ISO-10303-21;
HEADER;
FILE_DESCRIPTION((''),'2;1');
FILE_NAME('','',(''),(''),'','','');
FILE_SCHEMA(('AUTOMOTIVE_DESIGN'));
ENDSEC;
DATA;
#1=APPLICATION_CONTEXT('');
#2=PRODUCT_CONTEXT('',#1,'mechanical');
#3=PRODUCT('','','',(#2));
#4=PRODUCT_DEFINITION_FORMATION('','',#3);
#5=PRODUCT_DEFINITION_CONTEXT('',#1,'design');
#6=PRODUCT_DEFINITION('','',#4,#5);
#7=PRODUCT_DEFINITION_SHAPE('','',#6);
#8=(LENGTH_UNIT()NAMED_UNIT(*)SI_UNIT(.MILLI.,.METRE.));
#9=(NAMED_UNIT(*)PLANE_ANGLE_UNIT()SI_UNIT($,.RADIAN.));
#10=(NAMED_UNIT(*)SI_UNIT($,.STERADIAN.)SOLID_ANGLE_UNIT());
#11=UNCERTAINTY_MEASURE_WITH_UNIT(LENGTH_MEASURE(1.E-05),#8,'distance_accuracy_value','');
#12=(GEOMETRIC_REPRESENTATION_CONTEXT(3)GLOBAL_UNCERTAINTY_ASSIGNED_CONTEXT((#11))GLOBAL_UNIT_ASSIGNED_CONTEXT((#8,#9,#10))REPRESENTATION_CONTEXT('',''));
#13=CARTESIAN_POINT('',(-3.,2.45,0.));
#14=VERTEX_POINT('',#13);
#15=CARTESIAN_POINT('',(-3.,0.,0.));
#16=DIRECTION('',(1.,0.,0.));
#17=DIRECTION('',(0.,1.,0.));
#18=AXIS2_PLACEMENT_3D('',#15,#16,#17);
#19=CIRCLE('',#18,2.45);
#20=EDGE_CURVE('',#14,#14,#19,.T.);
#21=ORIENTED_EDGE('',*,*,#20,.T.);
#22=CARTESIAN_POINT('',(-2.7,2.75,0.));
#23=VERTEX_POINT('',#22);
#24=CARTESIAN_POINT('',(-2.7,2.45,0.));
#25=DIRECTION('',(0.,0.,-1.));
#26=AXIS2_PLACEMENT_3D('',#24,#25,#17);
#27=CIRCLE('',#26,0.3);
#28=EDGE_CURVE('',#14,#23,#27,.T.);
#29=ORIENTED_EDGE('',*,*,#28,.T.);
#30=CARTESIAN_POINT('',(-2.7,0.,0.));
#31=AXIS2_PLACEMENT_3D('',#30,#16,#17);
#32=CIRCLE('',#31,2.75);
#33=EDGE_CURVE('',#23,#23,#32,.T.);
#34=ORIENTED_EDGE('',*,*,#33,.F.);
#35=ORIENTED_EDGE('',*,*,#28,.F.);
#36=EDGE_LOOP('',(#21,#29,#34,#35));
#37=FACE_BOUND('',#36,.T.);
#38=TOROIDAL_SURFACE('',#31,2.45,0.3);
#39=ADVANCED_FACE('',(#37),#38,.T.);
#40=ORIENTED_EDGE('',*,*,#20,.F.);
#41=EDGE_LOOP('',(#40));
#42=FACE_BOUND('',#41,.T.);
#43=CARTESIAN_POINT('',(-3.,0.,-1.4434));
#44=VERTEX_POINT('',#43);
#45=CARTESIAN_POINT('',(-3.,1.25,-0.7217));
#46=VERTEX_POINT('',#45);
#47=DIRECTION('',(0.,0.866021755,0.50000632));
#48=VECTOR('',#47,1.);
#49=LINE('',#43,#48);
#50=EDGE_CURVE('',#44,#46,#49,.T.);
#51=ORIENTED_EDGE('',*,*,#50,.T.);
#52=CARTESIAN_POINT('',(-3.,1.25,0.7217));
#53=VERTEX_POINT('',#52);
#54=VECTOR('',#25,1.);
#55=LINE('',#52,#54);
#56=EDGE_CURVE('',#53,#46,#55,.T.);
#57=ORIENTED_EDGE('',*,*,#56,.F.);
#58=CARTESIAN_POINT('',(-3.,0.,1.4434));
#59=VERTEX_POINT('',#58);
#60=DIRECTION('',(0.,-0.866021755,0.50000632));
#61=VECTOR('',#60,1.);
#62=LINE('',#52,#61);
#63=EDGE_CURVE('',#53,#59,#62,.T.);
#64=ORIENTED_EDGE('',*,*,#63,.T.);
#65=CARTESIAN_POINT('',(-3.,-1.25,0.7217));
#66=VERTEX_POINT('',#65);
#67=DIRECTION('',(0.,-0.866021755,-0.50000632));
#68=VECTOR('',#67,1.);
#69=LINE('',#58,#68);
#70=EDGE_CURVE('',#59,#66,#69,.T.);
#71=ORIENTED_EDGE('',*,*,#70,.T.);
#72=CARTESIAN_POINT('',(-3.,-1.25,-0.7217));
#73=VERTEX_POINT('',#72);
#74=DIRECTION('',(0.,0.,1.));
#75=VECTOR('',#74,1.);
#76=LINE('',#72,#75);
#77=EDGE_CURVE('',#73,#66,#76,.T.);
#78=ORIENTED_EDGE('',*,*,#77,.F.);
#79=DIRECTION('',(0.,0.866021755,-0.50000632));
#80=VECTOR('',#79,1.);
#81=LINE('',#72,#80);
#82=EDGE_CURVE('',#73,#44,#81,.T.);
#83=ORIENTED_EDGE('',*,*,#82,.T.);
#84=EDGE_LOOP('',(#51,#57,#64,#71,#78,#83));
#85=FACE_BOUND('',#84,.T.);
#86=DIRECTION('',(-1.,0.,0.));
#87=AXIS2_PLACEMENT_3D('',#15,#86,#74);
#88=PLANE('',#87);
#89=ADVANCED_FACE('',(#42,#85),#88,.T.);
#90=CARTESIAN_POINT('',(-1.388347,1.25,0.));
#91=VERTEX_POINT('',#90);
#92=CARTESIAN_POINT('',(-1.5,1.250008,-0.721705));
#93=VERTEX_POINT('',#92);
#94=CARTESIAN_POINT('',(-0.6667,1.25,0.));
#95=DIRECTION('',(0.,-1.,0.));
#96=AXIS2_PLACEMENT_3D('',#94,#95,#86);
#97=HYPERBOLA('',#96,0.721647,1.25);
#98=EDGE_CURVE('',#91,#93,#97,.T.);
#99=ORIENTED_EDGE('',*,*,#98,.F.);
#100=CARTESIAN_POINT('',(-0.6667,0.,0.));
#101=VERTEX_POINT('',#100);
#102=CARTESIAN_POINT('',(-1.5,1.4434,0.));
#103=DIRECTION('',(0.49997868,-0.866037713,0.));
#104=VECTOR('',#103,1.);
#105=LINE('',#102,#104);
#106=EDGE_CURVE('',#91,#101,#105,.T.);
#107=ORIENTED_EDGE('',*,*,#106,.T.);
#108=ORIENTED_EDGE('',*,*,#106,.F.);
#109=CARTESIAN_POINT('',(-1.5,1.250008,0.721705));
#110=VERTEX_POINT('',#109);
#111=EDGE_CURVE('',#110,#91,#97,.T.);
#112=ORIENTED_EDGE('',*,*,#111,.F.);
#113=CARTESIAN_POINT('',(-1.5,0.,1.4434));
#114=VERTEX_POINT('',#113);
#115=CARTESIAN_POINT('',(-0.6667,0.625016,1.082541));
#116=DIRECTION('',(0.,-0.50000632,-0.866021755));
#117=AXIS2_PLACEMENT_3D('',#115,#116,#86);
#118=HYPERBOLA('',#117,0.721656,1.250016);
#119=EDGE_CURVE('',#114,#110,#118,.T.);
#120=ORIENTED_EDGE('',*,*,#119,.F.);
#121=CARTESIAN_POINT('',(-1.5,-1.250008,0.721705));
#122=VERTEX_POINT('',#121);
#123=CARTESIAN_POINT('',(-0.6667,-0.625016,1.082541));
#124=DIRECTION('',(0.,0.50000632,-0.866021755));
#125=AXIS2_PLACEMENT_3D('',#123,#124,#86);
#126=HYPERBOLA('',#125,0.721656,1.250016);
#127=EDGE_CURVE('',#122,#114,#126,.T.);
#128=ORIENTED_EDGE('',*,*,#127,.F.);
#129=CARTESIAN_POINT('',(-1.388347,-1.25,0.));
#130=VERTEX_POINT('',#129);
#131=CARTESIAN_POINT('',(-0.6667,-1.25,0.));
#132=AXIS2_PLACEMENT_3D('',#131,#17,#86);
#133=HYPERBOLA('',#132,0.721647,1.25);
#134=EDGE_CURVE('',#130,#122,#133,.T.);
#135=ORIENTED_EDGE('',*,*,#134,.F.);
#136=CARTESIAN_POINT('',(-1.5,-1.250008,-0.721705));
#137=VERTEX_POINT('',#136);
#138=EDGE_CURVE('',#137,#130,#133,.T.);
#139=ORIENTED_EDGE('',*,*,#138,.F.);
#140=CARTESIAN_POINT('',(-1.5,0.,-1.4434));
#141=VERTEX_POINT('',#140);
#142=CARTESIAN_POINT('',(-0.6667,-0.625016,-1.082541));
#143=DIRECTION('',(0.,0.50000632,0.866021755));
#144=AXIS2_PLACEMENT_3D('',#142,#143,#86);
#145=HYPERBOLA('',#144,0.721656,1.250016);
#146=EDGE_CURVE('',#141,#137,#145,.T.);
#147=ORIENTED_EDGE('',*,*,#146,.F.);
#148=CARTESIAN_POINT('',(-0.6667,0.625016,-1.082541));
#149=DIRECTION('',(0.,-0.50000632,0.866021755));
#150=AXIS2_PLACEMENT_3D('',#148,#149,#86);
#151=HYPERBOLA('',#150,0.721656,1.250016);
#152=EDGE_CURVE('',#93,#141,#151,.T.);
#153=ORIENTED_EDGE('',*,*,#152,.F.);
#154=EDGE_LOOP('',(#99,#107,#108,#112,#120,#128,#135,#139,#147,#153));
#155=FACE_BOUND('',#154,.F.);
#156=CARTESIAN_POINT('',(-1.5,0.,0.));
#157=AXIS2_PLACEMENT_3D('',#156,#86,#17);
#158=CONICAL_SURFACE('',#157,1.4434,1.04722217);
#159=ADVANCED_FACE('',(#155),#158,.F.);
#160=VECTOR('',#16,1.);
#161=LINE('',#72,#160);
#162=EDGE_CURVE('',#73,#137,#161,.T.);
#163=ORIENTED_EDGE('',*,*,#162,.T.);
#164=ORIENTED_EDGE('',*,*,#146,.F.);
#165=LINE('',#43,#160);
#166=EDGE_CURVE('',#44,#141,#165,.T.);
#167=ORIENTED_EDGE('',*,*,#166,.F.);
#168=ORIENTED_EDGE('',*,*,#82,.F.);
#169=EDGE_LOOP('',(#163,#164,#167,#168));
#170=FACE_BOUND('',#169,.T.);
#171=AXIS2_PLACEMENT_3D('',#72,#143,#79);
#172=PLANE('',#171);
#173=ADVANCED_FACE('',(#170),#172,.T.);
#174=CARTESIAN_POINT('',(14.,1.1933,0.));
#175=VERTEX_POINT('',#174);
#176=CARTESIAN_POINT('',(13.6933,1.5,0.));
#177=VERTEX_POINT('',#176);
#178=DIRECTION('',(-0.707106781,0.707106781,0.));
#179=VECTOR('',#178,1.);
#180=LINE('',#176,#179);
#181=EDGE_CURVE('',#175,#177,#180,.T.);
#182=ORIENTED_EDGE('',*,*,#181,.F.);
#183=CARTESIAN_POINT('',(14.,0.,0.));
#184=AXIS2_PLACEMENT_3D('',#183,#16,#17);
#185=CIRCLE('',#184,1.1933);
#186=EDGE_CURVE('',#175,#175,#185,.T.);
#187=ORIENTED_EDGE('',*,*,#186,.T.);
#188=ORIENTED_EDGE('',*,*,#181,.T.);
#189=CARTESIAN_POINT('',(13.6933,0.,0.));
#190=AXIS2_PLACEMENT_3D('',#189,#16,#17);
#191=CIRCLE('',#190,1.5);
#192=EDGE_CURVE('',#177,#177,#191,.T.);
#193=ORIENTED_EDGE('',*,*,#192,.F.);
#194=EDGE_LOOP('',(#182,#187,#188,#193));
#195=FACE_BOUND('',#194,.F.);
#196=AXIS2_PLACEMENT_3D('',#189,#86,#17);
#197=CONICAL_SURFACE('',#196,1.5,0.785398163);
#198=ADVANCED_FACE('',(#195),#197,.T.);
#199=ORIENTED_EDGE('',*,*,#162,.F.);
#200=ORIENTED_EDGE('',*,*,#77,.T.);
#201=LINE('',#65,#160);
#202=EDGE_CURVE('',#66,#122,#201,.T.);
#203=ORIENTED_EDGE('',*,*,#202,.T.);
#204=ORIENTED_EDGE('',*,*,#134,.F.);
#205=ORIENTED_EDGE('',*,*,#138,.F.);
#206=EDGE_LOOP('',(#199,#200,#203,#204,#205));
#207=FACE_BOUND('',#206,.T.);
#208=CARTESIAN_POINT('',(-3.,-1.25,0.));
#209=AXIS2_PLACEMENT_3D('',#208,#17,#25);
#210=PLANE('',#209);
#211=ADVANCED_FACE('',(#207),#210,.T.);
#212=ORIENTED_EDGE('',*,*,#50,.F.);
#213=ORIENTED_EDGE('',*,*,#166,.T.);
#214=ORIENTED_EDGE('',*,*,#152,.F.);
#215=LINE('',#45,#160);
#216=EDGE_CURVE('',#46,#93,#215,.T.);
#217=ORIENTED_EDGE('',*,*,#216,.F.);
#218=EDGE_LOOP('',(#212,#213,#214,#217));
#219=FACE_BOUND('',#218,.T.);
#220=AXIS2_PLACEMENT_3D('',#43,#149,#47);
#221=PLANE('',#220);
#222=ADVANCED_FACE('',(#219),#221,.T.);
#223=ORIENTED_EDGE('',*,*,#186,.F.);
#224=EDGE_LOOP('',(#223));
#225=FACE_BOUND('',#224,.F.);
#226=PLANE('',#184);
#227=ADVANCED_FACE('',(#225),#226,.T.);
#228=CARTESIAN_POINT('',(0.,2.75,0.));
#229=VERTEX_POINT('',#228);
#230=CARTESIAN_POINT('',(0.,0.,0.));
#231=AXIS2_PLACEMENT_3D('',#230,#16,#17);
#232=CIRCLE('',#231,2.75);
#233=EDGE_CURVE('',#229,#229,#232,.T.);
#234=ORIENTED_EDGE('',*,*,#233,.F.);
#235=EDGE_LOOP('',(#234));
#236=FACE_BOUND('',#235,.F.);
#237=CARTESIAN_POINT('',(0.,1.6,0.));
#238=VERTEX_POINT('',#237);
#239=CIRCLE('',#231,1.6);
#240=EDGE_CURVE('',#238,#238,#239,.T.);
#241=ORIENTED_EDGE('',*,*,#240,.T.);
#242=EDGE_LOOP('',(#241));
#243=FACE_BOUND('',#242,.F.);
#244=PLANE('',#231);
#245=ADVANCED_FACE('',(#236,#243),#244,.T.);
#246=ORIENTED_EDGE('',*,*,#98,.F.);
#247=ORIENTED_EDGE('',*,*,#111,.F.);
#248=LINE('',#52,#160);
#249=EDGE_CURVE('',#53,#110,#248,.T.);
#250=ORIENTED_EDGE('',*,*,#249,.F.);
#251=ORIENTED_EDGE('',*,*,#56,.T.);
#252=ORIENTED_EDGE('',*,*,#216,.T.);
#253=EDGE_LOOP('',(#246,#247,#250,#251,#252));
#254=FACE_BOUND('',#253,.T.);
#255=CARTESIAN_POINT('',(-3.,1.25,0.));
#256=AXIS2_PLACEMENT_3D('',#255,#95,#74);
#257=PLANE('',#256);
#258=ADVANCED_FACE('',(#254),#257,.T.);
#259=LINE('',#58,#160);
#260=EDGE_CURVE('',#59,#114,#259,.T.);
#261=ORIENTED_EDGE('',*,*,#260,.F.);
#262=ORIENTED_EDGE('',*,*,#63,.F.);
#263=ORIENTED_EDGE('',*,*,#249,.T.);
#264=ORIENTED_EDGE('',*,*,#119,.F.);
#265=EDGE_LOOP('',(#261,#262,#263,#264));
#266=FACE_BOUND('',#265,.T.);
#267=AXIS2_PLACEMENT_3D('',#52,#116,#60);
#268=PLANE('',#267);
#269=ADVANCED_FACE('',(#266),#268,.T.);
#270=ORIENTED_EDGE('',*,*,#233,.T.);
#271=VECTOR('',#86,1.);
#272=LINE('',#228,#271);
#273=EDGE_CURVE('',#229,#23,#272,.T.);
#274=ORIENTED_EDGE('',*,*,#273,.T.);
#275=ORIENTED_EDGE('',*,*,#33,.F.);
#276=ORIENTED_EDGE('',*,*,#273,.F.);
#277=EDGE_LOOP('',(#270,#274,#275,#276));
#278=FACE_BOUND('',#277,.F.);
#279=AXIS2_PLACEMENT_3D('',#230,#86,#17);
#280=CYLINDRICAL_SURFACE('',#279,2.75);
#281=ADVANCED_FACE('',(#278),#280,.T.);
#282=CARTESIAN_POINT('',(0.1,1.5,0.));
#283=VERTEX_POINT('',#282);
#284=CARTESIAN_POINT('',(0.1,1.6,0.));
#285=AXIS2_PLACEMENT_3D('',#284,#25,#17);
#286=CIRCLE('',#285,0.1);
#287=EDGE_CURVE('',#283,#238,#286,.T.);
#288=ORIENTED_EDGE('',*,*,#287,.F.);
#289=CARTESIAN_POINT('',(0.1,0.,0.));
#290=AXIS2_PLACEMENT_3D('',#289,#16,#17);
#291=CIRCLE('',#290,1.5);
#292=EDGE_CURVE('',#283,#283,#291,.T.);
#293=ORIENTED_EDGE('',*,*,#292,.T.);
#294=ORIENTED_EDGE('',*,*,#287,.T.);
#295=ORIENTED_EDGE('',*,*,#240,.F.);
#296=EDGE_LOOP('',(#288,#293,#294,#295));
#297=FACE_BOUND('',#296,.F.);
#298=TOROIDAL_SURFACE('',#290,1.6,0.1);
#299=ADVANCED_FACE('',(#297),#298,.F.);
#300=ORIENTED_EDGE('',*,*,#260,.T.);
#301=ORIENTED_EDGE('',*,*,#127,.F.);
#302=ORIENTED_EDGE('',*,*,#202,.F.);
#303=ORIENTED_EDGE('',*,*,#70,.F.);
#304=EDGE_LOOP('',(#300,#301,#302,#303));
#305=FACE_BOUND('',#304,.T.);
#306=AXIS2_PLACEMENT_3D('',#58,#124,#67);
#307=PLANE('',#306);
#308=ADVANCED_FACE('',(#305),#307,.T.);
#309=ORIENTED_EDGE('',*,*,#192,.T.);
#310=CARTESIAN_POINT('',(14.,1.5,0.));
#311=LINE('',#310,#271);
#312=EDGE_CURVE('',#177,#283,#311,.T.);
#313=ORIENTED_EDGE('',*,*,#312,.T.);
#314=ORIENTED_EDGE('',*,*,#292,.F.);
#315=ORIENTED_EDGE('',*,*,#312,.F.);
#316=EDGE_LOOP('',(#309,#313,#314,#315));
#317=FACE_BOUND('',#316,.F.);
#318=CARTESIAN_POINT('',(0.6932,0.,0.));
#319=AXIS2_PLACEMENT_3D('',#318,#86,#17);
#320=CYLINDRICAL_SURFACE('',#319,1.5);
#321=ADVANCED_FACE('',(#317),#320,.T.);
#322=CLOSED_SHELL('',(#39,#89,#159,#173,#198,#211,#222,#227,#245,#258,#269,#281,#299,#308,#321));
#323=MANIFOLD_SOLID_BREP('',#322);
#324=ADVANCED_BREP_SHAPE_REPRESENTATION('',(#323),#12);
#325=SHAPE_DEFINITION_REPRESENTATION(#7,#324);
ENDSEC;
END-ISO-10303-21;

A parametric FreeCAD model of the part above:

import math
import FreeCAD as App
import Part
import Sketcher
from FreeCAD import Vector
Q = App.Units.Quantity


def edges_at(feature, points):
    """Names of the edges that pass closest to the given points."""
    edges = feature.Shape.Edges
    near = lambda p: min(range(len(edges)), key=lambda i: edges[i].distToShape(Part.Vertex(*p))[0])
    return sorted({f"Edge{near(p) + 1}" for p in points})


def add_polygon(sketch, points):
    """Adds a closed chain of lines whose ends are joined by coincident constraints."""
    first, n = sketch.GeometryCount, len(points)
    for a, b in zip(points, points[1:] + points[:1]):
        sketch.addGeometry(Part.LineSegment(App.Vector(*a, 0), App.Vector(*b, 0)), False)
    for i in range(n):
        sketch.addConstraint(Sketcher.Constraint("Coincident", first + i, 2, first + (i + 1) % n, 1))

doc = App.newDocument("Part")
params = doc.addObject("Spreadsheet::Sheet", "Params")
for row, (alias, value) in enumerate([
    ("sketch1_width", "14 mm"),
    ("sketch1_width2", "3 mm"),
    ("sketch1_width3", "1.5 mm"),
    ("sketch1_height", "1.25 mm"),
    ("revolution_angle", "360 deg"),
    ("fillet_radius", "0.3 mm"),
    ("chamfer_size", "0.3067 mm"),
    ("chamfer_size2", "0.3067 mm"),
    ("fillet2_radius", "0.1 mm"),
], start=1):
    params.set(f"A{row}", alias)
    params.set(f"B{row}", "=" + value)
    params.setAlias(f"B{row}", alias)

body = doc.addObject("PartDesign::Body", "Body")

# Sketch on XY plane
sketch1 = body.newObject("Sketcher::SketchObject", "Sketch")
sketch1.AttachmentSupport = (doc.getObject("XY_Plane"), [""])
sketch1.MapMode = "FlatFace"
add_polygon(sketch1, [(-1.5, 1.4434), (-0.6667, 0), (14, 0), (14, 1.5), (0, 1.5), (0, 2.75), (-3, 2.75), (-3, 1.4434)])  # lines 0-7
sketch1.addConstraint([
    Sketcher.Constraint("Horizontal", 1),
    Sketcher.Constraint("Vertical", 2),
    Sketcher.Constraint("Horizontal", 3),
    Sketcher.Constraint("Vertical", 4),
    Sketcher.Constraint("Horizontal", 5),
    Sketcher.Constraint("Vertical", 6),
    Sketcher.Constraint("Horizontal", 7),
    Sketcher.Constraint("PointOnObject", 0, 2, -1),
    Sketcher.Constraint("PointOnObject", 3, 2, -2),
    Sketcher.Constraint("Equal", 7, 2),
    Sketcher.Constraint("DistanceX", 3, 2, 3, 1, 14.0),
    Sketcher.Constraint("DistanceX", 5, 2, 5, 1, 3.0),
    Sketcher.Constraint("DistanceX", 7, 1, 7, 2, 1.5),
    Sketcher.Constraint("DistanceY", 4, 1, 4, 2, 1.25),
    Sketcher.Constraint("DistanceX", 1, 1, 1, 2, 14.6667),
    Sketcher.Constraint("DistanceY", 6, 2, 6, 1, 1.3066),
])
sketch1.setExpression("Constraints[18]", "Params.sketch1_width")
sketch1.setExpression("Constraints[19]", "Params.sketch1_width2")
sketch1.setExpression("Constraints[20]", "Params.sketch1_width3")
sketch1.setExpression("Constraints[21]", "Params.sketch1_height")
revolution = body.newObject("PartDesign::Revolution", "Revolution")
revolution.Profile = sketch1
revolution.ReferenceAxis = (sketch1, ["H_Axis"])
revolution.setExpression("Angle", "Params.revolution_angle")

# Sketch on YZ plane
sketch2 = body.newObject("Sketcher::SketchObject", "Sketch001")
sketch2.AttachmentSupport = (doc.getObject("YZ_Plane"), [""])
sketch2.MapMode = "FlatFace"
sketch2.AttachmentOffset = App.Placement(Vector(0, 0, -3), App.Rotation())
sketch2.addGeometry([
    Part.LineSegment(Vector(1.25, 0.7217, 0), Vector(0, 1.4434, 0)),  # 0
    Part.ArcOfCircle(Part.Circle(Vector(0, 0, 0), Vector(0, 0, 1), 1.4434), math.radians(30.000418), math.radians(90)),  # 1
    Part.ArcOfCircle(Part.Circle(Vector(0, 0, 0), Vector(0, 0, 1), 1.4434), math.radians(90), math.radians(149.999582)),  # 2
    Part.LineSegment(Vector(0, 1.4434, 0), Vector(-1.25, 0.7217, 0)),  # 3
    Part.ArcOfCircle(Part.Circle(Vector(0, 0, 0), Vector(0, 0, 1), 1.4434), math.radians(-30.000418), math.radians(30.000418)),  # 4
    Part.LineSegment(Vector(1.25, 0.7217, 0), Vector(1.25, -0.7217, 0)),  # 5
    Part.LineSegment(Vector(-1.25, 0.7217, 0), Vector(-1.25, -0.7217, 0)),  # 6
    Part.ArcOfCircle(Part.Circle(Vector(0, 0, 0), Vector(0, 0, 1), 1.4434), math.radians(149.999582), math.radians(210.000418)),  # 7
    Part.LineSegment(Vector(-1.25, -0.7217, 0), Vector(0, -1.4434, 0)),  # 8
    Part.ArcOfCircle(Part.Circle(Vector(0, 0, 0), Vector(0, 0, 1), 1.4434), math.radians(-149.999582), math.radians(-90)),  # 9
    Part.ArcOfCircle(Part.Circle(Vector(0, 0, 0), Vector(0, 0, 1), 1.4434), math.radians(-90), math.radians(-30.000418)),  # 10
    Part.LineSegment(Vector(0, -1.4434, 0), Vector(1.25, -0.7217, 0)),  # 11
], False)
sketch2.addConstraint([
    Sketcher.Constraint("Coincident", 0, 1, 1, 1),
    Sketcher.Constraint("Coincident", 1, 2, 0, 2),
    Sketcher.Constraint("Coincident", 2, 1, 3, 1),
    Sketcher.Constraint("Coincident", 3, 2, 2, 2),
    Sketcher.Constraint("Coincident", 4, 1, 5, 2),
    Sketcher.Constraint("Coincident", 5, 1, 4, 2),
    Sketcher.Constraint("Coincident", 6, 1, 7, 1),
    Sketcher.Constraint("Coincident", 7, 2, 6, 2),
    Sketcher.Constraint("Coincident", 8, 1, 9, 1),
    Sketcher.Constraint("Coincident", 9, 2, 8, 2),
    Sketcher.Constraint("Coincident", 10, 1, 11, 1),
    Sketcher.Constraint("Coincident", 11, 2, 10, 2),
    Sketcher.Constraint("Vertical", 5),
    Sketcher.Constraint("Vertical", 6),
    Sketcher.Constraint("Coincident", 1, 3, -1, 1),
    Sketcher.Constraint("Coincident", 2, 3, -1, 1),
    Sketcher.Constraint("Coincident", 4, 3, -1, 1),
    Sketcher.Constraint("Coincident", 7, 3, -1, 1),
    Sketcher.Constraint("Coincident", 9, 3, -1, 1),
    Sketcher.Constraint("Coincident", 10, 3, -1, 1),
    Sketcher.Constraint("Coincident", 2, 1, 1, 2),
    Sketcher.Constraint("Coincident", 5, 1, 0, 1),
    Sketcher.Constraint("Coincident", 6, 1, 3, 2),
    Sketcher.Constraint("Coincident", 8, 1, 7, 2),
    Sketcher.Constraint("Coincident", 10, 1, 9, 2),
    Sketcher.Constraint("PointOnObject", 1, 2, -2),
    Sketcher.Constraint("PointOnObject", 9, 2, -2),
    Sketcher.Constraint("Parallel", 0, 8),
    Sketcher.Constraint("Parallel", 3, 11),
    Sketcher.Constraint("Angle", 0, Q("149.9996 deg")),
    Sketcher.Constraint("Radius", 1, 1.4434),
])
pad1 = body.newObject("PartDesign::Pad", "Pad")
pad1.Profile = sketch2
pad1.Type = "UpToFirst"
doc.recompute()

fillet = body.newObject("PartDesign::Fillet", "Fillet")
fillet.Base = (pad1, edges_at(pad1, [(-3, -2.75, 0)]))
fillet.setExpression("Radius", "Params.fillet_radius")
doc.recompute()

chamfer = body.newObject("PartDesign::Chamfer", "Chamfer")
chamfer.Base = (fillet, edges_at(fillet, [(14, -1.5, 0)]))
chamfer.ChamferType = "Two distances"
chamfer.setExpression("Size", "Params.chamfer_size")
chamfer.setExpression("Size2", "Params.chamfer_size2")
doc.recompute()

fillet2 = body.newObject("PartDesign::Fillet", "Fillet001")
fillet2.Base = (chamfer, edges_at(chamfer, [(0, -1.5, 0)]))
fillet2.setExpression("Radius", "Params.fillet2_radius")

doc.recompute()
